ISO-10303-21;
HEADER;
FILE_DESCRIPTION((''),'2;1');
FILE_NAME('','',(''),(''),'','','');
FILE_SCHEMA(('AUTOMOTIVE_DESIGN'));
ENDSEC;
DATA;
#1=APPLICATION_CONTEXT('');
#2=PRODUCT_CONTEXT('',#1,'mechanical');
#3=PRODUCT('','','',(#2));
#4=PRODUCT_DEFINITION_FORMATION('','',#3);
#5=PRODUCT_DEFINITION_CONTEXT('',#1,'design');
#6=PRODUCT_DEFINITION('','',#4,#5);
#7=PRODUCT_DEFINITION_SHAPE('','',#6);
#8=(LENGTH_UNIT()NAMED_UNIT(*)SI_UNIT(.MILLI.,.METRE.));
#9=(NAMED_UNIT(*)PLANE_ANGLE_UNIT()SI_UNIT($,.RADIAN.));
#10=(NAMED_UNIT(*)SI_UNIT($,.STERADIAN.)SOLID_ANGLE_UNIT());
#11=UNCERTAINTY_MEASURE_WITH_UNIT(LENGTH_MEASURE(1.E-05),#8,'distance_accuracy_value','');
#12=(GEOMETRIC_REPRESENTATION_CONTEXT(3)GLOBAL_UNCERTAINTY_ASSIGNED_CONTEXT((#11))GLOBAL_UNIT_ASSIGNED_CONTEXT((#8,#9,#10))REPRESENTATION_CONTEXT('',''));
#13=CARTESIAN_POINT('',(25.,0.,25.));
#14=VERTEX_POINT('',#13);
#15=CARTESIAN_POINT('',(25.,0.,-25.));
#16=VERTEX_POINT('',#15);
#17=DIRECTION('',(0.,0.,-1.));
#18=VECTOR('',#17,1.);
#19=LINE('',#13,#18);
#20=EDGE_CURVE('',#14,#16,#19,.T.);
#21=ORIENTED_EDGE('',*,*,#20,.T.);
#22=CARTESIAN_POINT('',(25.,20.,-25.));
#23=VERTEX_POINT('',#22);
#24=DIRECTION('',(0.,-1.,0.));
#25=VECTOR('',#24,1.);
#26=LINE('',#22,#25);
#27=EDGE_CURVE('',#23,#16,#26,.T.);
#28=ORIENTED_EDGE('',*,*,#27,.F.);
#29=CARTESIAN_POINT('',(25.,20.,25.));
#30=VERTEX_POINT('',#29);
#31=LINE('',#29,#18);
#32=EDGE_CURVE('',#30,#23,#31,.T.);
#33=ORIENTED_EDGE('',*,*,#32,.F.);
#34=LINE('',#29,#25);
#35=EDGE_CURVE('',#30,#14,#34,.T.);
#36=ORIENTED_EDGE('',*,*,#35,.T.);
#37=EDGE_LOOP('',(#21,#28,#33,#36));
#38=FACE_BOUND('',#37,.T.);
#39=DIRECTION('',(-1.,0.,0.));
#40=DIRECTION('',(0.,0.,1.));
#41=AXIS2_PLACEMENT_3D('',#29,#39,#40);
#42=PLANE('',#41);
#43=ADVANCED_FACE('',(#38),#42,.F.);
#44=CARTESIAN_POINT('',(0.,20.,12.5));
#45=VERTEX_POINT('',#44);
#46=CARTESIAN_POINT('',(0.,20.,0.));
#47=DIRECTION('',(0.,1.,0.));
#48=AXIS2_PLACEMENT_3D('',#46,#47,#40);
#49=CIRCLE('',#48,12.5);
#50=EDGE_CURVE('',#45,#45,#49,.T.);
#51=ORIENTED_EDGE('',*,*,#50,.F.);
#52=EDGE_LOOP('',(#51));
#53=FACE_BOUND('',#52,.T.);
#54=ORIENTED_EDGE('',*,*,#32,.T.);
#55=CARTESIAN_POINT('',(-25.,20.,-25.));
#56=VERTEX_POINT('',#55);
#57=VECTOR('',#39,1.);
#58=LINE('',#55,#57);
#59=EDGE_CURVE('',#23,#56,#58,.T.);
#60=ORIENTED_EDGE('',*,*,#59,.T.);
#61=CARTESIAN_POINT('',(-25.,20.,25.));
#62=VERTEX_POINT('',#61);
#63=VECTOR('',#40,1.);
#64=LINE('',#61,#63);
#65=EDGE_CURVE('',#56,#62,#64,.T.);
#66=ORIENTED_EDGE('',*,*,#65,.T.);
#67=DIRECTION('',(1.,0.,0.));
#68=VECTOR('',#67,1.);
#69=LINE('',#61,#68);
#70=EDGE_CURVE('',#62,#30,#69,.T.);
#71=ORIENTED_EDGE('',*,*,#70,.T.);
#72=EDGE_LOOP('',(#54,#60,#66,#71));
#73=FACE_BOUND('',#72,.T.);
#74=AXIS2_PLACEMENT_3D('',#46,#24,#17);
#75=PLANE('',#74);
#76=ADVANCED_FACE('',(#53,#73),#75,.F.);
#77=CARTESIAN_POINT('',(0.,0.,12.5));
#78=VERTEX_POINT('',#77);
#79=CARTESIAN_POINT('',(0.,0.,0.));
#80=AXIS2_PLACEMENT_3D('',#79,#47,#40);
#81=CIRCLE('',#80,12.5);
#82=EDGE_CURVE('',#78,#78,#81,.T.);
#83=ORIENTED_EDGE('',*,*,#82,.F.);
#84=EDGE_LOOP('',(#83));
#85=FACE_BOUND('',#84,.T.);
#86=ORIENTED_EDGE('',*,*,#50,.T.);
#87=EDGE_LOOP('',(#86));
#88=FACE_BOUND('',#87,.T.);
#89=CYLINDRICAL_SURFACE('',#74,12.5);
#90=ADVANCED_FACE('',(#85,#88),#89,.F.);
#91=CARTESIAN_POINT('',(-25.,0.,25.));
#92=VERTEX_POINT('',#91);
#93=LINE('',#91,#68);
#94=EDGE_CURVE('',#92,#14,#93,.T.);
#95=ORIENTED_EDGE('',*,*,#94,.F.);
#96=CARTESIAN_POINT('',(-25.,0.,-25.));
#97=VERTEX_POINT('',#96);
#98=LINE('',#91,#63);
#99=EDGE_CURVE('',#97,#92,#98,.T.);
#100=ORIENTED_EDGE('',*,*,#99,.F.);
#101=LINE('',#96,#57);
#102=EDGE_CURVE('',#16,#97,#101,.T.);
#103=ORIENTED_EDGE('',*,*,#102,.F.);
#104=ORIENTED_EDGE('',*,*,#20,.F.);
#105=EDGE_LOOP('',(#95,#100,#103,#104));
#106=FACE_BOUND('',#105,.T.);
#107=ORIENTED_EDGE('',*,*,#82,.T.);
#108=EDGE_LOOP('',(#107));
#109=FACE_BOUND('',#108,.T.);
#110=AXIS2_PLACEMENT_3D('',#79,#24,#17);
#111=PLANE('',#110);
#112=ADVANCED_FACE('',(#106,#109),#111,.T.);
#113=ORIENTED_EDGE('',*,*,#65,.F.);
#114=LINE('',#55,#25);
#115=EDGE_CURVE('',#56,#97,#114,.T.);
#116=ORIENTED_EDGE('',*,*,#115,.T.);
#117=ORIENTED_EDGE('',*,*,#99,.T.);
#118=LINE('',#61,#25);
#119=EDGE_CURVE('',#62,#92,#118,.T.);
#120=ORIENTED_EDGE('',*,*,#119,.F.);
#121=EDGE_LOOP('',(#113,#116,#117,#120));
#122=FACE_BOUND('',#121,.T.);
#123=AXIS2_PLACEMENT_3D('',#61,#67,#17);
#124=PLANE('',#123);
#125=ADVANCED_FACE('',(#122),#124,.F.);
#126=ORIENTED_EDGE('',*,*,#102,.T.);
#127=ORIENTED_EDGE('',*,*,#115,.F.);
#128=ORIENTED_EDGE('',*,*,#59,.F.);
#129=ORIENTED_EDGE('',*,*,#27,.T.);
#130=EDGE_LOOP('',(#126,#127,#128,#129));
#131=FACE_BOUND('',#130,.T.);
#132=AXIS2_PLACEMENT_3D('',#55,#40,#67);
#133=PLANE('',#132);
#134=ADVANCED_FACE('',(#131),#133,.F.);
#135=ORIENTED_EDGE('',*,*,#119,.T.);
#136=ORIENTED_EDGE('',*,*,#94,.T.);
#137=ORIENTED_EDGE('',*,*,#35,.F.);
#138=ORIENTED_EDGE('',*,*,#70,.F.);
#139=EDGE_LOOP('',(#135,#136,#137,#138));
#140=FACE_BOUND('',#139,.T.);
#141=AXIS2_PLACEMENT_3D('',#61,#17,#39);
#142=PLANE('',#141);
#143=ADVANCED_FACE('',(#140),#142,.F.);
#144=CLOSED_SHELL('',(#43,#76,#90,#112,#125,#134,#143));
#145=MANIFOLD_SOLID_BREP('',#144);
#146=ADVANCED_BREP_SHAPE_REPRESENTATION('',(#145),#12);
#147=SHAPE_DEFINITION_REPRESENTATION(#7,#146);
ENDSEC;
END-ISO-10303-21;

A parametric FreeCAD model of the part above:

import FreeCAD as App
import Part
import Sketcher
from FreeCAD import Vector
Q = App.Units.Quantity


def add_polygon(sketch, points):
    """Adds a closed chain of lines whose ends are joined by coincident constraints."""
    first, n = sketch.GeometryCount, len(points)
    for a, b in zip(points, points[1:] + points[:1]):
        sketch.addGeometry(Part.LineSegment(App.Vector(*a, 0), App.Vector(*b, 0)), False)
    for i in range(n):
        sketch.addConstraint(Sketcher.Constraint("Coincident", first + i, 2, first + (i + 1) % n, 1))

doc = App.newDocument("Part")
body = doc.addObject("PartDesign::Body", "Body")

# Sketch on XZ plane
sketch1 = body.newObject("Sketcher::SketchObject", "Sketch")
sketch1.AttachmentSupport = (doc.getObject("XZ_Plane"), [""])
sketch1.MapMode = "FlatFace"
add_polygon(sketch1, [(-25, -25), (-25, 25), (25, 25), (25, -25)])  # lines 0-3
sketch1.addGeometry(Part.Circle(Vector(0, 0, 0), Vector(0, 0, 1), 12.5), False)  # 4
sketch1.addConstraint([
    Sketcher.Constraint("Vertical", 0),
    Sketcher.Constraint("Horizontal", 1),
    Sketcher.Constraint("Vertical", 2),
    Sketcher.Constraint("Horizontal", 3),
    Sketcher.Constraint("Coincident", 4, 3, -1, 1),
    Sketcher.Constraint("Symmetric", 0, 2, 2, 2, -1, 1),
    Sketcher.Constraint("Equal", 3, 0),
    Sketcher.Constraint("Diameter", 4, Q("25 mm")),
    Sketcher.Constraint("DistanceX", 1, 1, 1, 2, Q("50 mm")),
])
pad1 = body.newObject("PartDesign::Pad", "Pad")
pad1.Profile = sketch1
pad1.Length = 20
pad1.Reversed = True

doc.recompute()
